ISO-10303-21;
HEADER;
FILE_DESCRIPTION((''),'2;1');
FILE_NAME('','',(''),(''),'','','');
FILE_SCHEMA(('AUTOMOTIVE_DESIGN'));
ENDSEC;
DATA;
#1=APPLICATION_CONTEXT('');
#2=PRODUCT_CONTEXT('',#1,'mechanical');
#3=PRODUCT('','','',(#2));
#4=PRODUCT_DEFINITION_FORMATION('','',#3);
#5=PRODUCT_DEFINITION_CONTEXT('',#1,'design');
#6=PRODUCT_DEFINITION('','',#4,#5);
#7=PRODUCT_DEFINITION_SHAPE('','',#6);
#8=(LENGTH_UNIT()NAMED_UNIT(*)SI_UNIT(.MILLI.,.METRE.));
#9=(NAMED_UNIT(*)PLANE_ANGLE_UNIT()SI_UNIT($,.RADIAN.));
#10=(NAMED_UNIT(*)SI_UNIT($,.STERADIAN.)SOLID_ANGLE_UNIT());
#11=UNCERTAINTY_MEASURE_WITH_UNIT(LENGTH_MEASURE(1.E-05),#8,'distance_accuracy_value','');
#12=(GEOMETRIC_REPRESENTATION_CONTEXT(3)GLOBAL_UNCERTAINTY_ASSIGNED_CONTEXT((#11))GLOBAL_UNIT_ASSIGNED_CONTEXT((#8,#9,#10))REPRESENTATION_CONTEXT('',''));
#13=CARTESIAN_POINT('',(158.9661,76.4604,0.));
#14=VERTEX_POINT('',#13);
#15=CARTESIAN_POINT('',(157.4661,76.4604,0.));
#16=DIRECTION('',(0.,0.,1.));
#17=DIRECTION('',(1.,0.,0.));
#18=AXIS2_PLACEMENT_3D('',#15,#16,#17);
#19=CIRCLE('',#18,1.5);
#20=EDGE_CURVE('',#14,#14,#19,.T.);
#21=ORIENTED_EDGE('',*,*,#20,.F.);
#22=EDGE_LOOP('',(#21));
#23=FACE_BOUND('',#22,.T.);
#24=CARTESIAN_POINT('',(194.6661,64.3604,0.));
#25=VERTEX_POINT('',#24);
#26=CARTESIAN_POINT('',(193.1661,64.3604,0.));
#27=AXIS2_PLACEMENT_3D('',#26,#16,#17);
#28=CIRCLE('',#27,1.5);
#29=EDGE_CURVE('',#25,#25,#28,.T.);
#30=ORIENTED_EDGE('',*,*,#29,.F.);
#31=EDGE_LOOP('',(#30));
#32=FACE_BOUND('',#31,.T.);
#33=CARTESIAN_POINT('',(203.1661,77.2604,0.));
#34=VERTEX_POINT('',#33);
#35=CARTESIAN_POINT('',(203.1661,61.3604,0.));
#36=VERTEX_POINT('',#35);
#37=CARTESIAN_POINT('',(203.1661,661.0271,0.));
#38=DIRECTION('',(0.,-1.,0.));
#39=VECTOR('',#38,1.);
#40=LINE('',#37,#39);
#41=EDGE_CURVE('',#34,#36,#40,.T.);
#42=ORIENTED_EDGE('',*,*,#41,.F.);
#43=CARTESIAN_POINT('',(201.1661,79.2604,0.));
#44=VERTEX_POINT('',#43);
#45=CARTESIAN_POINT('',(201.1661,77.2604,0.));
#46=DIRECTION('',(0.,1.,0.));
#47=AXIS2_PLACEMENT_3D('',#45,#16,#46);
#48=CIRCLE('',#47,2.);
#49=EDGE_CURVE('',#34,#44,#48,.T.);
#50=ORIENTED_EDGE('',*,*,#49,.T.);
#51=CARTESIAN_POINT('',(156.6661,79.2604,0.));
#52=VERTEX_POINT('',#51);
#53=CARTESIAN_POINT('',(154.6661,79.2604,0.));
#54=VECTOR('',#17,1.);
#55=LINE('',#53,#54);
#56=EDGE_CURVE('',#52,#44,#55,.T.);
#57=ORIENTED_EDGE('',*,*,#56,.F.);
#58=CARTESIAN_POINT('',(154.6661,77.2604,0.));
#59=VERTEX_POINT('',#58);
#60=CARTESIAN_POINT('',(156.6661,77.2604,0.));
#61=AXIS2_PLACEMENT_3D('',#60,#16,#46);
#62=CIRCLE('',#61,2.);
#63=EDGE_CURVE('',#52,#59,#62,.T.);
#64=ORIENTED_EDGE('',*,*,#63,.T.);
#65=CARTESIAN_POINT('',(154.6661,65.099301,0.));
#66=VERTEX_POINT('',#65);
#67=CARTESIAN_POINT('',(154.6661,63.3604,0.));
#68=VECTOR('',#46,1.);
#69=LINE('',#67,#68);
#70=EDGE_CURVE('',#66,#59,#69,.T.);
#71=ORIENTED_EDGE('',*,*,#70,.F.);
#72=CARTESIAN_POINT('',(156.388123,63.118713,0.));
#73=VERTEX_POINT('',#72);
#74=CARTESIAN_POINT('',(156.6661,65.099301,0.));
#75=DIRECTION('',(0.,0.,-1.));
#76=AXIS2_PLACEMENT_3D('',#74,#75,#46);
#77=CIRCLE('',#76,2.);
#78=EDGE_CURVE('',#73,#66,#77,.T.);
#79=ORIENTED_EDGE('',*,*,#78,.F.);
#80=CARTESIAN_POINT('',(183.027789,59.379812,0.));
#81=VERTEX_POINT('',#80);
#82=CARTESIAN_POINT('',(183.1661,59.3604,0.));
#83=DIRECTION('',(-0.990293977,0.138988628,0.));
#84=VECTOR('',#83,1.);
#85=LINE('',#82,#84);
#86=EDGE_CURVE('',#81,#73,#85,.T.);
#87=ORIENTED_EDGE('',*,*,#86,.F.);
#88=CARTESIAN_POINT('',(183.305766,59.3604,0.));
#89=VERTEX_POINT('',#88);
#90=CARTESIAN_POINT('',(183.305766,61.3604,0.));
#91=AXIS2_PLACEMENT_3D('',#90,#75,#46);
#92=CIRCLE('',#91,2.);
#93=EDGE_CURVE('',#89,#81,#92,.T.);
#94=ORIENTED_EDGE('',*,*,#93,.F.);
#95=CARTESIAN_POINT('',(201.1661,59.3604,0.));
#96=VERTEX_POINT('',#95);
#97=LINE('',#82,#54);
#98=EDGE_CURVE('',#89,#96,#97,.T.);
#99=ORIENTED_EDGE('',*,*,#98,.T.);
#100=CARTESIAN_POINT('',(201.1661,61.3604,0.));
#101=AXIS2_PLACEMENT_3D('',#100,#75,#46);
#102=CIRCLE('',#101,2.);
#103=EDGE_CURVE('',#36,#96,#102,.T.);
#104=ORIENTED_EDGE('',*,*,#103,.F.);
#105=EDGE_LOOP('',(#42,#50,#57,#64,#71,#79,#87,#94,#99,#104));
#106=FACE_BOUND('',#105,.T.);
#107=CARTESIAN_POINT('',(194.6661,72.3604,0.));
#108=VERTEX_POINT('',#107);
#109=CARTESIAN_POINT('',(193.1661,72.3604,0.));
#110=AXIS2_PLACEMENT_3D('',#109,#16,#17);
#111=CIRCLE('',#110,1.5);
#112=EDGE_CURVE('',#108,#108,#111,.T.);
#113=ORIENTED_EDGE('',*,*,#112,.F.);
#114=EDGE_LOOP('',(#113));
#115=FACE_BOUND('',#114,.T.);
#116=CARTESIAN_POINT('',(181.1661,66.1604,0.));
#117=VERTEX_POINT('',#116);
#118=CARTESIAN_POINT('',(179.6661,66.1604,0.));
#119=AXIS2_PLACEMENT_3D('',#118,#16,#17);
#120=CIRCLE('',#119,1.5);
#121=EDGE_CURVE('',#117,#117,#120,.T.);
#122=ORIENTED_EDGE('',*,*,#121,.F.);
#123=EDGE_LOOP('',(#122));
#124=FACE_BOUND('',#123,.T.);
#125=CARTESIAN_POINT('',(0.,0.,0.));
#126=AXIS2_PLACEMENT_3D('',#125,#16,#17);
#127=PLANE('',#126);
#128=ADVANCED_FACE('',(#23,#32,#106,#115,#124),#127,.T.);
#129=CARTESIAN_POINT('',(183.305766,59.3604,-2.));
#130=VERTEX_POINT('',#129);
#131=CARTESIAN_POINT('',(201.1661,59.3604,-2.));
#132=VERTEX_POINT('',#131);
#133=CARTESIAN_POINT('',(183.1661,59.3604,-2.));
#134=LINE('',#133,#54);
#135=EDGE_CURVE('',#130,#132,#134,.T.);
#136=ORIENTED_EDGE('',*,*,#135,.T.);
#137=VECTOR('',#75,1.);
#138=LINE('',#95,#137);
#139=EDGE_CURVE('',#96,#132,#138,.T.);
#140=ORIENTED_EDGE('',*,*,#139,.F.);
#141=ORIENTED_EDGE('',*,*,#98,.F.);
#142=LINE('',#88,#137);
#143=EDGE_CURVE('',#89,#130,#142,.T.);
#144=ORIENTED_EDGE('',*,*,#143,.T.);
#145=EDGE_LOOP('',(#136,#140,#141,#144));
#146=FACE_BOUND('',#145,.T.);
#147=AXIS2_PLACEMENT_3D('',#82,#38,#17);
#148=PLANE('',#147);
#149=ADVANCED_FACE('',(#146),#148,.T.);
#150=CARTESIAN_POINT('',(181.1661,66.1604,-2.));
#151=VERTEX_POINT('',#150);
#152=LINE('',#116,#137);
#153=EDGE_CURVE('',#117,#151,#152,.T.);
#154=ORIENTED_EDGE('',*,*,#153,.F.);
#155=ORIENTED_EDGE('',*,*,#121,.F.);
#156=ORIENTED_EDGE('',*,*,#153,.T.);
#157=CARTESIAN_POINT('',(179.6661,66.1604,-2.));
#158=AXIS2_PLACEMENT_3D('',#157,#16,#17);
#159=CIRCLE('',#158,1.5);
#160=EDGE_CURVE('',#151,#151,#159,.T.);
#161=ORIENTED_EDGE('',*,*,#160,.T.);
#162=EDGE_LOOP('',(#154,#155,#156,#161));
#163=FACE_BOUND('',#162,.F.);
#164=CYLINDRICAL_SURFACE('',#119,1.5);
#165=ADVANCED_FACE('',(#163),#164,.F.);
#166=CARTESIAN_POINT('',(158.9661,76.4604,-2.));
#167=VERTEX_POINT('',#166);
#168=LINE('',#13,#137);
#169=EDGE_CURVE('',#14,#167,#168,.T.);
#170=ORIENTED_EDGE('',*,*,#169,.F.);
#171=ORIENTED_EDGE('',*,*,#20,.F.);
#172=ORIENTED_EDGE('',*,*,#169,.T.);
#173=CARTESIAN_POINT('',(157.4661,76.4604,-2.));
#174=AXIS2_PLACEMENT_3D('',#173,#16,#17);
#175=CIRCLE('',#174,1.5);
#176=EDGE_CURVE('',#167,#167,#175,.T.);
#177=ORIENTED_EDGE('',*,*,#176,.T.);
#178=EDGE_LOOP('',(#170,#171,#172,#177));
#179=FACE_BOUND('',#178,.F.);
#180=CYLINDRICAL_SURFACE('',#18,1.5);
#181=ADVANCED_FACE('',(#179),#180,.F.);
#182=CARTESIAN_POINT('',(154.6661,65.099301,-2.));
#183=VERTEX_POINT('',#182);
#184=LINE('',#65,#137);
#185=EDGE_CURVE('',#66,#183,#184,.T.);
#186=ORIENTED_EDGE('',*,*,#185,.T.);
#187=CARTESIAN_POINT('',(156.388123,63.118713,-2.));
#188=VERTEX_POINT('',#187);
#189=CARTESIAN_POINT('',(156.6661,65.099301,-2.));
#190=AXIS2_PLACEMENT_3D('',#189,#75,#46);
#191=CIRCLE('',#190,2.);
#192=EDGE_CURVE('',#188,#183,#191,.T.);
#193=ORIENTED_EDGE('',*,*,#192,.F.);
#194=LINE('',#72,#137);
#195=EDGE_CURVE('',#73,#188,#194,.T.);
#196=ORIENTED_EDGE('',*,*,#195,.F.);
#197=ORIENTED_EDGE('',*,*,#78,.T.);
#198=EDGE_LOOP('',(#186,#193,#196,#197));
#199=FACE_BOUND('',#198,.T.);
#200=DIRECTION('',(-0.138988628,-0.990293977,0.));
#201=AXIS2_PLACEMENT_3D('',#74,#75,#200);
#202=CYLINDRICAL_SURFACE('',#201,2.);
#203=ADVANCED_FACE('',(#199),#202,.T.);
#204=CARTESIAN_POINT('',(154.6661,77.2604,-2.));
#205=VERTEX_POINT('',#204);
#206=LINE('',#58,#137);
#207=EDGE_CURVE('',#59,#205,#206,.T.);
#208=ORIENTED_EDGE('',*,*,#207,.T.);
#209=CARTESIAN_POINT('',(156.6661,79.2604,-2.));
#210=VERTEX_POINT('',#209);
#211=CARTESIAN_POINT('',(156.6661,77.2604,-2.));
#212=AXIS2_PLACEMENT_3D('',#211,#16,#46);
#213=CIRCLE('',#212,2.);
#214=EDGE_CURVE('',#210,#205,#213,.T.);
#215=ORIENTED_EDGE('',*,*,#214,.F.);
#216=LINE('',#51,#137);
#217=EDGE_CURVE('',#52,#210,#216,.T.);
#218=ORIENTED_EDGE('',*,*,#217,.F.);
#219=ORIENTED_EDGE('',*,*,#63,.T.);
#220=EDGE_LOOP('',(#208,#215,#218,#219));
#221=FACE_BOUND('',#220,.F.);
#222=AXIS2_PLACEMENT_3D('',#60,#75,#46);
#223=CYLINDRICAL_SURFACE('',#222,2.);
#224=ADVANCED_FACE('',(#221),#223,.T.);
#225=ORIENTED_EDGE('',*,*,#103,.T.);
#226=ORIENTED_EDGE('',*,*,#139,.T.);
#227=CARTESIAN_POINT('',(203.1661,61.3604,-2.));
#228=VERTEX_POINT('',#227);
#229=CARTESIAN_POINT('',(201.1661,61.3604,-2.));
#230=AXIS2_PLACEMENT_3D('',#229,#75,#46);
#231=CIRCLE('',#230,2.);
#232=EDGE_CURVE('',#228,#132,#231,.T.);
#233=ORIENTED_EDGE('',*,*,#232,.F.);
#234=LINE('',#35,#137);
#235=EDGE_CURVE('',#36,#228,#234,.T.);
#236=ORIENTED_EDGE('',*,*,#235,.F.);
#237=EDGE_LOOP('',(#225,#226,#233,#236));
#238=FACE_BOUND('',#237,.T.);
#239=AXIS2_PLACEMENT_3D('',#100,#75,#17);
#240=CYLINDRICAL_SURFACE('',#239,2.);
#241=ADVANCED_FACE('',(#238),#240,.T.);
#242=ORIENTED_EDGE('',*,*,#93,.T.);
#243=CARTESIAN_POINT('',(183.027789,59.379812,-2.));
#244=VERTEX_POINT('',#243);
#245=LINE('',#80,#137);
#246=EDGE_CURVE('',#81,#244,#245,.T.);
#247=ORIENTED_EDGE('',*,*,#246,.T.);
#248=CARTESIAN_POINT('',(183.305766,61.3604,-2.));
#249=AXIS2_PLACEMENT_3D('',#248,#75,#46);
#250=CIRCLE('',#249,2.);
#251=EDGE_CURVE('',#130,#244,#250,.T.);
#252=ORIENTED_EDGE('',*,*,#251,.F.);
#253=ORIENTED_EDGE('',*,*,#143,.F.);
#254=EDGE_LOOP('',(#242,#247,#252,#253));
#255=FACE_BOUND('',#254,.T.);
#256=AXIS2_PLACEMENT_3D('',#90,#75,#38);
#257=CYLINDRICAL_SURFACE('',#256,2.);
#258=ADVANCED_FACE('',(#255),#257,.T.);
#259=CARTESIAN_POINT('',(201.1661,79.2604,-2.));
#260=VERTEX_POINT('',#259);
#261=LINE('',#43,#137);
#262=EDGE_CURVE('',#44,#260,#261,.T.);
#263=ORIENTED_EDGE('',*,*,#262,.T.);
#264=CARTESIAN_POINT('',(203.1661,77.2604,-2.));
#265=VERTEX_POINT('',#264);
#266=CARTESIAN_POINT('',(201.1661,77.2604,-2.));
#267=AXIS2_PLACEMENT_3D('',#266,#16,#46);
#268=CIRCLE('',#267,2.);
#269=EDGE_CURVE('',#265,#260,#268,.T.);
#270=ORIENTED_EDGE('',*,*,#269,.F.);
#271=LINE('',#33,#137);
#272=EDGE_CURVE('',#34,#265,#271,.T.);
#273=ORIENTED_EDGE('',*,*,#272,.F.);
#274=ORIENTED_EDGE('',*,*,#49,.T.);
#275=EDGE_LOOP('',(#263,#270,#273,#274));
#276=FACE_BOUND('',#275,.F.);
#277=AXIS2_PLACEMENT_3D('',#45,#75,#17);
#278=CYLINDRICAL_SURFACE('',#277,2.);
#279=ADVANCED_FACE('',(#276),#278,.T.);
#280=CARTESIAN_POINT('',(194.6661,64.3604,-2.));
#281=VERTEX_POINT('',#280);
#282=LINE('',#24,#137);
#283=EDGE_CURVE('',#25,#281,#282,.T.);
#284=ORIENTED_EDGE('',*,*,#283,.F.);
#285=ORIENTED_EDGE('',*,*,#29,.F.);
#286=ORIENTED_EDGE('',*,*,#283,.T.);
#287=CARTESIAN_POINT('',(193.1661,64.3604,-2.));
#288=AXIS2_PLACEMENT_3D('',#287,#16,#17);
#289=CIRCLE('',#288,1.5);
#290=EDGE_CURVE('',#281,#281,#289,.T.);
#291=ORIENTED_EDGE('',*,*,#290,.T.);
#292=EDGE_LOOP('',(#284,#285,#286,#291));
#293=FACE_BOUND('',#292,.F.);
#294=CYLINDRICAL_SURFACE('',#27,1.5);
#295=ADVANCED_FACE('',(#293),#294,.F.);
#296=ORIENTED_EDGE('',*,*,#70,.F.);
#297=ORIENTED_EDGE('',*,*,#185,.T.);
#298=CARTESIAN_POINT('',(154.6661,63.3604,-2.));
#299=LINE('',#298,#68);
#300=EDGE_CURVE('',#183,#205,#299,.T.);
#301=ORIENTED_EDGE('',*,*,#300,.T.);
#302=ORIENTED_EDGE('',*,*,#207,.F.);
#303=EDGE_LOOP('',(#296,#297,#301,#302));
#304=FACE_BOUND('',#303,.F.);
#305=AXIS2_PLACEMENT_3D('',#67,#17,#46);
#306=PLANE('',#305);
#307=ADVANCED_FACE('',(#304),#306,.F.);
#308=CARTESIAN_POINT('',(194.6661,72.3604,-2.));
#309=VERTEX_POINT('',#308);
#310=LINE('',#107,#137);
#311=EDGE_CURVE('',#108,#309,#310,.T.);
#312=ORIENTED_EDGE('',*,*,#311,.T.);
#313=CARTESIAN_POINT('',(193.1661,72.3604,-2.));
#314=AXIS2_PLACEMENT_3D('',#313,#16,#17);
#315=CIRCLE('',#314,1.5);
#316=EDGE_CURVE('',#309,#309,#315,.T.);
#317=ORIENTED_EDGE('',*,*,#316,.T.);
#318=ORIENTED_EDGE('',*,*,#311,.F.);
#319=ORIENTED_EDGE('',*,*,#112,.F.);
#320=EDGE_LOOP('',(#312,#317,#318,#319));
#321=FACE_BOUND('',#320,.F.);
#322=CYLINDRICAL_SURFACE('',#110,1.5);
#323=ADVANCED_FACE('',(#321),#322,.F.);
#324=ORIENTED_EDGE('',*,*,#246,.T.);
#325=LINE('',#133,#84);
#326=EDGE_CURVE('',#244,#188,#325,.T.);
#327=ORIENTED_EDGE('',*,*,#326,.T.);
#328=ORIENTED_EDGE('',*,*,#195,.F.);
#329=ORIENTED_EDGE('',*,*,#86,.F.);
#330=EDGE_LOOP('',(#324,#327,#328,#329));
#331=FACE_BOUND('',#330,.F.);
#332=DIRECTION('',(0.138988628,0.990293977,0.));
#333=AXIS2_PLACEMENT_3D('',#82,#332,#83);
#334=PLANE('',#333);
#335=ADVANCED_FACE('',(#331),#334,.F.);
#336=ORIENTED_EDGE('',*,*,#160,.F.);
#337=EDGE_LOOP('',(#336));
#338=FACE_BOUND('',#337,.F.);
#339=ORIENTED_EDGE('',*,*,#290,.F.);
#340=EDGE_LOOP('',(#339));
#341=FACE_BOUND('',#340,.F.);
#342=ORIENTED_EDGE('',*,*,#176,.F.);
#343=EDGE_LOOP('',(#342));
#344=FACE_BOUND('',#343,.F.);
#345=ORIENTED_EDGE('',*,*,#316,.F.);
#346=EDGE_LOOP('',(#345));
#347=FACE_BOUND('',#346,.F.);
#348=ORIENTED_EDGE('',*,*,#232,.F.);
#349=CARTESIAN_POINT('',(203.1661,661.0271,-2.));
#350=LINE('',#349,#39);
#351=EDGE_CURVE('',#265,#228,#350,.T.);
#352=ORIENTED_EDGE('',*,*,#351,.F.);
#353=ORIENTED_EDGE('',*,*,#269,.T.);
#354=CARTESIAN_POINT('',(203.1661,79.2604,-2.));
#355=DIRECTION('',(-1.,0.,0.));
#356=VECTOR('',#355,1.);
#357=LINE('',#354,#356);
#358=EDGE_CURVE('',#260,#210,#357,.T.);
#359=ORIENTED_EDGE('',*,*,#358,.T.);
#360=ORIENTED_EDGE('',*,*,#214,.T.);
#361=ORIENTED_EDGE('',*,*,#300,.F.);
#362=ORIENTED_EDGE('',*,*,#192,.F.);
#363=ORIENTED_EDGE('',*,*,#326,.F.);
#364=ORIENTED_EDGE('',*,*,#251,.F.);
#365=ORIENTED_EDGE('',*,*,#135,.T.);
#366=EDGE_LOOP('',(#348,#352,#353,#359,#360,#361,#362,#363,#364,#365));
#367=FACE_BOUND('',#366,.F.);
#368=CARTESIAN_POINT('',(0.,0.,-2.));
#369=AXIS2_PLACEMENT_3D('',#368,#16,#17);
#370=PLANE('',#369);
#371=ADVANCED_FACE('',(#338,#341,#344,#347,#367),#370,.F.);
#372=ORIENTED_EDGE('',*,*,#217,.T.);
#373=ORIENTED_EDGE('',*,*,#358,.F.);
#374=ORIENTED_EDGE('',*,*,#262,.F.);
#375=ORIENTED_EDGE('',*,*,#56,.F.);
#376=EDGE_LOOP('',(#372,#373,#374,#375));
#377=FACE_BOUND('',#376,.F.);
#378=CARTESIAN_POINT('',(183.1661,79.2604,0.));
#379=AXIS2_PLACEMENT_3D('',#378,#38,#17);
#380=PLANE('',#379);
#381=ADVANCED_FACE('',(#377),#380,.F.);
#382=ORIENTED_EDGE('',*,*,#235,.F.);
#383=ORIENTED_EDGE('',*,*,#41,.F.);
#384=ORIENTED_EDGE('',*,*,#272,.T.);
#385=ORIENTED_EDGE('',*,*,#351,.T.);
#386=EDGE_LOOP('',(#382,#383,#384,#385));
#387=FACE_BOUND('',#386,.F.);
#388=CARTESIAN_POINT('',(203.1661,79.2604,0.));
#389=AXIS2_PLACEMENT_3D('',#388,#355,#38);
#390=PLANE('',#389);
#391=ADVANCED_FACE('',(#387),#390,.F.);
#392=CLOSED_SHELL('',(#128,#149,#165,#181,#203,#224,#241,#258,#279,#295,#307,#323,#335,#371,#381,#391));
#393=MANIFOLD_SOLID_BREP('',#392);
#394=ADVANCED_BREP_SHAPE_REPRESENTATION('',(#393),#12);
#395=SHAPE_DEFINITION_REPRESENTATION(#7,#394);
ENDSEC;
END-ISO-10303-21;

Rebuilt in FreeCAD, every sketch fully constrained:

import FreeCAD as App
import Part
import Sketcher


def edges_at(feature, points):
    """Names of the edges that pass closest to the given points."""
    edges = feature.Shape.Edges
    near = lambda p: min(range(len(edges)), key=lambda i: edges[i].distToShape(Part.Vertex(*p))[0])
    return sorted({f"Edge{near(p) + 1}" for p in points})

doc = App.newDocument("Part")
params = doc.addObject("Spreadsheet::Sheet", "Params")
for row, (alias, value) in enumerate([
    ("sketch1_diameter", "3 mm"),
    ("sketch1_width", "20 mm"),
    ("sketch1_height", "15.9 mm"),
    ("sketch1_width2", "48.5 mm"),
    ("pad1_length", "2 mm"),
    ("fillet_radius", "2 mm"),
], start=1):
    params.set(f"A{row}", alias)
    params.set(f"B{row}", "=" + value)
    params.setAlias(f"B{row}", alias)

body = doc.addObject("PartDesign::Body", "Body")

sketch1 = doc.addObject("Sketcher::SketchObject", "Sketch")
body.addObject(sketch1)
sketch1.AttachmentSupport = (doc.XY_Plane, [""])
sketch1.MapMode = "FlatFace"
sketch1.addGeometry([
    Part.LineSegment(App.Vector(203.1661, 59.3604, 0), App.Vector(203.1661, 79.2604, 0)),
    Part.LineSegment(App.Vector(203.1661, 79.2604, 0), App.Vector(154.6661, 79.2604, 0)),
    Part.LineSegment(App.Vector(154.6661, 79.2604, 0), App.Vector(154.6661, 63.3604, 0)),
    Part.LineSegment(App.Vector(154.6661, 63.3604, 0), App.Vector(183.1661, 59.3604, 0)),
    Part.LineSegment(App.Vector(183.1661, 59.3604, 0), App.Vector(203.1661, 59.3604, 0)),
    Part.Circle(App.Vector(193.1661, 64.3604, 0), App.Vector(0, 0, 1), 1.5),
    Part.Circle(App.Vector(193.1661, 72.3604, 0), App.Vector(0, 0, 1), 1.5),
    Part.Circle(App.Vector(157.4661, 76.4604, 0), App.Vector(0, 0, 1), 1.5),
    Part.Circle(App.Vector(179.6661, 66.1604, 0), App.Vector(0, 0, 1), 1.5),
], False)
sketch1.addConstraint([
    Sketcher.Constraint("Coincident", 0, 2, 1, 1),
    Sketcher.Constraint("Coincident", 1, 2, 2, 1),
    Sketcher.Constraint("Coincident", 2, 2, 3, 1),
    Sketcher.Constraint("Coincident", 3, 2, 4, 1),
    Sketcher.Constraint("Coincident", 4, 2, 0, 1),
    Sketcher.Constraint("Vertical", 0),
    Sketcher.Constraint("Horizontal", 1),
    Sketcher.Constraint("Vertical", 2),
    Sketcher.Constraint("Horizontal", 4),
    Sketcher.Constraint("Equal", 5, 6),
    Sketcher.Constraint("Equal", 6, 7),
    Sketcher.Constraint("Equal", 7, 8),
    Sketcher.Constraint("Vertical", 5, 3, 6, 3),
    Sketcher.Constraint("Diameter", 5, 3.0),
    Sketcher.Constraint("DistanceX", 4, 1, 4, 2, 20.0),
    Sketcher.Constraint("DistanceY", 2, 2, 2, 1, 15.9),
    Sketcher.Constraint("DistanceY", 5, 3, 6, 3, 8.0),
    Sketcher.Constraint("DistanceX", 6, 3, 0, 2, 10.0),
    Sketcher.Constraint("DistanceY", 3, 2, 5, 3, 5.0),
    Sketcher.Constraint("DistanceY", 3, 2, 2, 2, 4.0),
    Sketcher.Constraint("DistanceY", 7, 3, 0, 2, 2.8),
    Sketcher.Constraint("DistanceX", 1, 2, 7, 3, 2.8),
    Sketcher.Constraint("DistanceY", 2, 2, 8, 3, 2.8),
    Sketcher.Constraint("DistanceX", 8, 3, 3, 2, 3.5),
    Sketcher.Constraint("DistanceX", 1, 2, 1, 1, 48.5),
    Sketcher.Constraint("DistanceX", -1, 1, 0, 2, 203.166),
    Sketcher.Constraint("DistanceY", -1, 1, 5, 3, 64.3604),
])
sketch1.setExpression("Constraints[13]", "Params.sketch1_diameter")
sketch1.setExpression("Constraints[14]", "Params.sketch1_width")
sketch1.setExpression("Constraints[15]", "Params.sketch1_height")
sketch1.setExpression("Constraints[24]", "Params.sketch1_width2")
pad1 = doc.addObject("PartDesign::Pad", "Pad")
body.addObject(pad1)
pad1.Profile = sketch1
pad1.setExpression("Length", "Params.pad1_length")
pad1.Reversed = True
doc.recompute()

fillet = doc.addObject("PartDesign::Fillet", "Fillet")
body.addObject(fillet)
fillet.Base = (pad1, edges_at(pad1, [
    (154.666, 79.26, -1),
    (154.666, 63.36, -1),
    (183.166, 59.36, -1),
    (203.166, 59.36, -1),
    (203.166, 79.26, -1),
]))
fillet.setExpression("Radius", "Params.fillet_radius")

doc.recompute()
